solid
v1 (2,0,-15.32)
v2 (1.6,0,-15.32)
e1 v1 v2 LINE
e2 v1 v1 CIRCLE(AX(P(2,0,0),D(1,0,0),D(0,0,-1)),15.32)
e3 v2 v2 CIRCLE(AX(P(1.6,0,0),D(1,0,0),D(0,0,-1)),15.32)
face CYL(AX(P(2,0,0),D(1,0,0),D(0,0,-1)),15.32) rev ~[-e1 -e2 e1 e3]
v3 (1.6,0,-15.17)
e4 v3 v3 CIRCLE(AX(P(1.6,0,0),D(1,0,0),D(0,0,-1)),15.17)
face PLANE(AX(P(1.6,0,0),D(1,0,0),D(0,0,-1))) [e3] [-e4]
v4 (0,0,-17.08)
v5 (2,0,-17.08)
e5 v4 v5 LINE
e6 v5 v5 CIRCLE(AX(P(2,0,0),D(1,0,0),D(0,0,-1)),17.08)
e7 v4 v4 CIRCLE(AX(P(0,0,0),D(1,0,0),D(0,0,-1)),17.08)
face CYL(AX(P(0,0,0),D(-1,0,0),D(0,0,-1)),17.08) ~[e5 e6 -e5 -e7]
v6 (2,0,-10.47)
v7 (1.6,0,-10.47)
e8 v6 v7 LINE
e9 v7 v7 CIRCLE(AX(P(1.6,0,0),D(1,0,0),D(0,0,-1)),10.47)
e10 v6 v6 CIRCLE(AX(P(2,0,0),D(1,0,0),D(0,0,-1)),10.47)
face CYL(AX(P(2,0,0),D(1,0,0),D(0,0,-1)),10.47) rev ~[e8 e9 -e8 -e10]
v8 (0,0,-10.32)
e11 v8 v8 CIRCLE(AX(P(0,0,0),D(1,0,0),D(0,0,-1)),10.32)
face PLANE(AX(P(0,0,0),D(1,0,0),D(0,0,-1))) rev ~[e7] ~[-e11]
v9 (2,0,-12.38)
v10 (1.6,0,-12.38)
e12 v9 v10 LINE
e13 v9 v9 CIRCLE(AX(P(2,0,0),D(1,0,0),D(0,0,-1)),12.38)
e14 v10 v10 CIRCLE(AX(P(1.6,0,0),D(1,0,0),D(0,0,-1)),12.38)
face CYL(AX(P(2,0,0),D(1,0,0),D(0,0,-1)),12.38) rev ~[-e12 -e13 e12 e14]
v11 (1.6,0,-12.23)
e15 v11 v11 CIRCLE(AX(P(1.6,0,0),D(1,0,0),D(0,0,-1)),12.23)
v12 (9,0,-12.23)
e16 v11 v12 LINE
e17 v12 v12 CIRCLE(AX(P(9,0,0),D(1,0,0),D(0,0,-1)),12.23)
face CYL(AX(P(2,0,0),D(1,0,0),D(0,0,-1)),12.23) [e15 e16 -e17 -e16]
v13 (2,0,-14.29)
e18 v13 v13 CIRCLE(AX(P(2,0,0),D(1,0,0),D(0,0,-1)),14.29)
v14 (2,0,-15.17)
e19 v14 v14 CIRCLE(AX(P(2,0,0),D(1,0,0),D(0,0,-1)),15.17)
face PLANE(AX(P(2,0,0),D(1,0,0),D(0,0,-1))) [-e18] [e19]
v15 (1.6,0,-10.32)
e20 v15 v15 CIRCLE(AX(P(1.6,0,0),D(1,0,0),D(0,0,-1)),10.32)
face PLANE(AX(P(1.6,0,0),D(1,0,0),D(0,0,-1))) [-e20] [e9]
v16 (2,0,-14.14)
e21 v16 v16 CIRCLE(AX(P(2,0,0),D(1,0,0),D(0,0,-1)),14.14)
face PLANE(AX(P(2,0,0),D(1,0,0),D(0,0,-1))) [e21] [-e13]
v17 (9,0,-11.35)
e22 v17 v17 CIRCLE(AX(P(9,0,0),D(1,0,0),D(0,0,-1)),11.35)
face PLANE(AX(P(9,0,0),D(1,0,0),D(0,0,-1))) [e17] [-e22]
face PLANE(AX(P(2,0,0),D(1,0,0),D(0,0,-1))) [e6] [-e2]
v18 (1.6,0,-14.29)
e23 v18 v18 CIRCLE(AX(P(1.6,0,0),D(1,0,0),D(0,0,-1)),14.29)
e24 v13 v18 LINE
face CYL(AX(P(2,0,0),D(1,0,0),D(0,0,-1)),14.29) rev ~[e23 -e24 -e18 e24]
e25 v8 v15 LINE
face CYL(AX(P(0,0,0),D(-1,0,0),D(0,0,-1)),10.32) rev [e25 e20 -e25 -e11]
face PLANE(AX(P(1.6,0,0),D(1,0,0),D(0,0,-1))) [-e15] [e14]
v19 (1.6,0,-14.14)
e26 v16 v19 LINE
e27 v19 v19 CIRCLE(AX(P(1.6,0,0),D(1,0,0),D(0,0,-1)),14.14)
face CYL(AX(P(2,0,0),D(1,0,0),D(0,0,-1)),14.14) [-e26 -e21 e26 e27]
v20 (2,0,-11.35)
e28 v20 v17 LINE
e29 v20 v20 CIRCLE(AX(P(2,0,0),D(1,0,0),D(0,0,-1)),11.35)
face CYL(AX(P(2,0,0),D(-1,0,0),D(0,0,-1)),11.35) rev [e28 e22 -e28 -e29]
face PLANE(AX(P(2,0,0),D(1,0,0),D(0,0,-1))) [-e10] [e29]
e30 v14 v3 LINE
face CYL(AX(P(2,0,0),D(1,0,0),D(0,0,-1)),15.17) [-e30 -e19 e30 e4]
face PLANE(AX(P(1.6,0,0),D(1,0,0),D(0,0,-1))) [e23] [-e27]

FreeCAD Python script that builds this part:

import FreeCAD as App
import Part
import Sketcher

doc = App.newDocument("Part")
params = doc.addObject("Spreadsheet::Sheet", "Params")
for row, (alias, value) in enumerate([
    ("sketch1_diameter", "34.16 mm"),
    ("sketch1_diameter2", "20.64 mm"),
    ("pad1_length", "2 mm"),
    ("sketch2_diameter", "22.7 mm"),
    ("sketch2_diameter2", "24.46 mm"),
    ("pad2_length", "7 mm"),
    ("sketch3_diameter", "20.94 mm"),
    ("sketch3_diameter2", "20.64 mm"),
    ("pocket1_length", "0.4 mm"),
    ("sketch4_diameter", "24.76 mm"),
    ("sketch4_diameter2", "24.46 mm"),
    ("pocket2_length", "0.4 mm"),
    ("sketch5_diameter", "28.58 mm"),
    ("sketch5_diameter2", "28.28 mm"),
    ("pocket3_length", "0.4 mm"),
    ("sketch6_diameter", "30.64 mm"),
    ("sketch6_diameter2", "30.34 mm"),
    ("pocket4_length", "0.4 mm"),
], start=1):
    params.set(f"A{row}", alias)
    params.set(f"B{row}", "=" + value)
    params.setAlias(f"B{row}", alias)

body = doc.addObject("PartDesign::Body", "Body")

# Sketch on YZ plane
sketch1 = body.newObject("Sketcher::SketchObject", "Sketch")
sketch1.AttachmentSupport = (doc.getObject("YZ_Plane"), [""])
sketch1.MapMode = "FlatFace"
sketch1.addGeometry(Part.Circle(App.Vector(0, 0, 0), App.Vector(0, 0, 1), 17), False)
sketch1.addGeometry(Part.Circle(App.Vector(0, 0, 0), App.Vector(0, 0, 1), 10), False)
sketch1.addConstraint(Sketcher.Constraint("Coincident", 0, 3, -1, 1))
sketch1.addConstraint(Sketcher.Constraint("Coincident", 1, 3, -1, 1))
sketch1.addConstraint(Sketcher.Constraint("Diameter", 0, 34.16))
sketch1.addConstraint(Sketcher.Constraint("Diameter", 1, 20.64))
sketch1.setExpression("Constraints[2]", "Params.sketch1_diameter")
sketch1.setExpression("Constraints[3]", "Params.sketch1_diameter2")
pad1 = body.newObject("PartDesign::Pad", "Pad")
pad1.Profile = sketch1
pad1.setExpression("Length", "Params.pad1_length")

# Sketch on YZ plane
sketch2 = body.newObject("Sketcher::SketchObject", "Sketch001")
sketch2.AttachmentSupport = (doc.getObject("YZ_Plane"), [""])
sketch2.MapMode = "FlatFace"
sketch2.AttachmentOffset = App.Placement(App.Vector(0, 0, 2), App.Rotation())
sketch2.addGeometry(Part.Circle(App.Vector(0, 0, 0), App.Vector(0, 0, 1), 12), False)
sketch2.addGeometry(Part.Circle(App.Vector(0, 0, 0), App.Vector(0, 0, 1), 11), False)
sketch2.addConstraint(Sketcher.Constraint("Coincident", 0, 3, -1, 1))
sketch2.addConstraint(Sketcher.Constraint("Coincident", 1, 3, -1, 1))
sketch2.addConstraint(Sketcher.Constraint("Diameter", 1, 22.7))
sketch2.addConstraint(Sketcher.Constraint("Diameter", 0, 24.46))
sketch2.setExpression("Constraints[2]", "Params.sketch2_diameter")
sketch2.setExpression("Constraints[3]", "Params.sketch2_diameter2")
pad2 = body.newObject("PartDesign::Pad", "Pad001")
pad2.Profile = sketch2
pad2.setExpression("Length", "Params.pad2_length")

# Sketch on YZ plane
sketch3 = body.newObject("Sketcher::SketchObject", "Sketch002")
sketch3.AttachmentSupport = (doc.getObject("YZ_Plane"), [""])
sketch3.MapMode = "FlatFace"
sketch3.AttachmentOffset = App.Placement(App.Vector(0, 0, 2), App.Rotation())
sketch3.addGeometry(Part.Circle(App.Vector(0, 0, 0), App.Vector(0, 0, 1), 10), False)
sketch3.addGeometry(Part.Circle(App.Vector(0, 0, 0), App.Vector(0, 0, 1), 10), False)
sketch3.addConstraint(Sketcher.Constraint("Coincident", 0, 3, -1, 1))
sketch3.addConstraint(Sketcher.Constraint("Coincident", 1, 3, -1, 1))
sketch3.addConstraint(Sketcher.Constraint("Diameter", 0, 20.94))
sketch3.addConstraint(Sketcher.Constraint("Diameter", 1, 20.64))
sketch3.setExpression("Constraints[2]", "Params.sketch3_diameter")
sketch3.setExpression("Constraints[3]", "Params.sketch3_diameter2")
pocket1 = body.newObject("PartDesign::Pocket", "Pocket")
pocket1.Profile = sketch3
pocket1.setExpression("Length", "Params.pocket1_length")

# Sketch on YZ plane
sketch4 = body.newObject("Sketcher::SketchObject", "Sketch003")
sketch4.AttachmentSupport = (doc.getObject("YZ_Plane"), [""])
sketch4.MapMode = "FlatFace"
sketch4.AttachmentOffset = App.Placement(App.Vector(0, 0, 2), App.Rotation())
sketch4.addGeometry(Part.Circle(App.Vector(0, 0, 0), App.Vector(0, 0, 1), 12), False)
sketch4.addGeometry(Part.Circle(App.Vector(0, 0, 0), App.Vector(0, 0, 1), 12), False)
sketch4.addConstraint(Sketcher.Constraint("Coincident", 0, 3, -1, 1))
sketch4.addConstraint(Sketcher.Constraint("Coincident", 1, 3, -1, 1))
sketch4.addConstraint(Sketcher.Constraint("Diameter", 0, 24.76))
sketch4.addConstraint(Sketcher.Constraint("Diameter", 1, 24.46))
sketch4.setExpression("Constraints[2]", "Params.sketch4_diameter")
sketch4.setExpression("Constraints[3]", "Params.sketch4_diameter2")
pocket2 = body.newObject("PartDesign::Pocket", "Pocket001")
pocket2.Profile = sketch4
pocket2.setExpression("Length", "Params.pocket2_length")

# Sketch on YZ plane
sketch5 = body.newObject("Sketcher::SketchObject", "Sketch004")
sketch5.AttachmentSupport = (doc.getObject("YZ_Plane"), [""])
sketch5.MapMode = "FlatFace"
sketch5.AttachmentOffset = App.Placement(App.Vector(0, 0, 2), App.Rotation())
sketch5.addGeometry(Part.Circle(App.Vector(0, 0, 0), App.Vector(0, 0, 1), 14), False)
sketch5.addGeometry(Part.Circle(App.Vector(0, 0, 0), App.Vector(0, 0, 1), 14), False)
sketch5.addConstraint(Sketcher.Constraint("Coincident", 0, 3, -1, 1))
sketch5.addConstraint(Sketcher.Constraint("Coincident", 1, 3, -1, 1))
sketch5.addConstraint(Sketcher.Constraint("Diameter", 0, 28.58))
sketch5.addConstraint(Sketcher.Constraint("Diameter", 1, 28.28))
sketch5.setExpression("Constraints[2]", "Params.sketch5_diameter")
sketch5.setExpression("Constraints[3]", "Params.sketch5_diameter2")
pocket3 = body.newObject("PartDesign::Pocket", "Pocket002")
pocket3.Profile = sketch5
pocket3.setExpression("Length", "Params.pocket3_length")

# Sketch on YZ plane
sketch6 = body.newObject("Sketcher::SketchObject", "Sketch005")
sketch6.AttachmentSupport = (doc.getObject("YZ_Plane"), [""])
sketch6.MapMode = "FlatFace"
sketch6.AttachmentOffset = App.Placement(App.Vector(0, 0, 2), App.Rotation())
sketch6.addGeometry(Part.Circle(App.Vector(0, 0, 0), App.Vector(0, 0, 1), 15), False)
sketch6.addGeometry(Part.Circle(App.Vector(0, 0, 0), App.Vector(0, 0, 1), 15), False)
sketch6.addConstraint(Sketcher.Constraint("Coincident", 0, 3, -1, 1))
sketch6.addConstraint(Sketcher.Constraint("Coincident", 1, 3, -1, 1))
sketch6.addConstraint(Sketcher.Constraint("Diameter", 0, 30.64))
sketch6.addConstraint(Sketcher.Constraint("Diameter", 1, 30.34))
sketch6.setExpression("Constraints[2]", "Params.sketch6_diameter")
sketch6.setExpression("Constraints[3]", "Params.sketch6_diameter2")
pocket4 = body.newObject("PartDesign::Pocket", "Pocket003")
pocket4.Profile = sketch6
pocket4.setExpression("Length", "Params.pocket4_length")

doc.recompute()
